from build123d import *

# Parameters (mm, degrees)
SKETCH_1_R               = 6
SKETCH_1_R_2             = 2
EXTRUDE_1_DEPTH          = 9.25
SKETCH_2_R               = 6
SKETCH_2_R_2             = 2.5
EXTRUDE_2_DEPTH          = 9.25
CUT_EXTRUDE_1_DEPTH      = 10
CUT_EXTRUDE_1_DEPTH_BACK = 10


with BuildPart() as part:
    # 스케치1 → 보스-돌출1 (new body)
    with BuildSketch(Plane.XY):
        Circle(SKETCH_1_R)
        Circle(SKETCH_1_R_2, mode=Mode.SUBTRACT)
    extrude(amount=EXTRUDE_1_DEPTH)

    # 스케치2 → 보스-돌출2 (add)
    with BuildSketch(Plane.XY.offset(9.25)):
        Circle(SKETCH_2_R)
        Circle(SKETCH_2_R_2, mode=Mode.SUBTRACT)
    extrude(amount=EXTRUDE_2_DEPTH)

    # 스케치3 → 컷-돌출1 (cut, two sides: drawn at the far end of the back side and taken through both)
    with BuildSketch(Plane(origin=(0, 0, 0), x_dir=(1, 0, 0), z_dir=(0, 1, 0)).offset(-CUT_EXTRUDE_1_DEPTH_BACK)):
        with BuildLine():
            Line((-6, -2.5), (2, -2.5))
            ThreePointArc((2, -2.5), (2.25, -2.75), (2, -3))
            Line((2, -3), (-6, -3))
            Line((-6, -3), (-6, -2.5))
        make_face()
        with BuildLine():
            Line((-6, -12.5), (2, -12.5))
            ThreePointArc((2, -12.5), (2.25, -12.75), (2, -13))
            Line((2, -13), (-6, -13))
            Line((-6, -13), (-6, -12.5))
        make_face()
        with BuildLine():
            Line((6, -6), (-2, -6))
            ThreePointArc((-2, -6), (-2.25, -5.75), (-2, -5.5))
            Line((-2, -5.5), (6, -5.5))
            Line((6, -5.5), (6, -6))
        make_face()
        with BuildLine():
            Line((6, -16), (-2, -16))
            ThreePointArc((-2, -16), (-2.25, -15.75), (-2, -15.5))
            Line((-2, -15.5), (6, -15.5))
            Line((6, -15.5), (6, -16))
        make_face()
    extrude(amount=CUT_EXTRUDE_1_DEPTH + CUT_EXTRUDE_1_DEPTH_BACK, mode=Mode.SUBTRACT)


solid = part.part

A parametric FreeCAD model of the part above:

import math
import FreeCAD as App
import Part
import Sketcher
Q = App.Units.Quantity

doc = App.newDocument("Part")
params = doc.addObject("Spreadsheet::Sheet", "Params")
for row, (alias, value) in enumerate([
    ("sketch1_diameter", "12 mm"),
    ("sketch1_diameter2", "4 mm"),
    ("pad1_length", "9.25 mm"),
    ("sketch2_diameter", "12 mm"),
    ("sketch2_diameter2", "5 mm"),
    ("pad2_length", "9.25 mm"),
    ("sketch3_width", "8 mm"),
    ("sketch3_radius", "0.25 mm"),
], start=1):
    params.set(f"A{row}", alias)
    params.set(f"B{row}", "=" + value)
    params.setAlias(f"B{row}", alias)

body = doc.addObject("PartDesign::Body", "Body")

# Sketch on XY plane
sketch1 = body.newObject("Sketcher::SketchObject", "Sketch")
sketch1.AttachmentSupport = (doc.getObject("XY_Plane"), [""])
sketch1.MapMode = "FlatFace"
sketch1.addGeometry(Part.Circle(App.Vector(0, 0, 0), App.Vector(0, 0, 1), 6), False)
sketch1.addGeometry(Part.Circle(App.Vector(0, 0, 0), App.Vector(0, 0, 1), 2), False)
sketch1.addConstraint(Sketcher.Constraint("Coincident", 0, 3, -1, 1))
sketch1.addConstraint(Sketcher.Constraint("Coincident", 1, 3, -1, 1))
sketch1.addConstraint(Sketcher.Constraint("Diameter", 0, Q("12 mm")))
sketch1.addConstraint(Sketcher.Constraint("Diameter", 1, Q("4 mm")))
sketch1.setExpression("Constraints[2]", "Params.sketch1_diameter")
sketch1.setExpression("Constraints[3]", "Params.sketch1_diameter2")
pad1 = body.newObject("PartDesign::Pad", "Pad")
pad1.Profile = sketch1
pad1.setExpression("Length", "Params.pad1_length")

# Sketch on XY plane
sketch2 = body.newObject("Sketcher::SketchObject", "Sketch001")
sketch2.AttachmentSupport = (doc.getObject("XY_Plane"), [""])
sketch2.MapMode = "FlatFace"
sketch2.AttachmentOffset = App.Placement(App.Vector(0, 0, 9.25), App.Rotation())
sketch2.addGeometry(Part.Circle(App.Vector(0, 0, 0), App.Vector(0, 0, 1), 6), False)
sketch2.addGeometry(Part.Circle(App.Vector(0, 0, 0), App.Vector(0, 0, 1), 2.5), False)
sketch2.addConstraint(Sketcher.Constraint("Coincident", 0, 3, -1, 1))
sketch2.addConstraint(Sketcher.Constraint("Coincident", 1, 3, -1, 1))
sketch2.addConstraint(Sketcher.Constraint("Diameter", 0, Q("12 mm")))
sketch2.addConstraint(Sketcher.Constraint("Diameter", 1, Q("5 mm")))
sketch2.setExpression("Constraints[2]", "Params.sketch2_diameter")
sketch2.setExpression("Constraints[3]", "Params.sketch2_diameter2")
pad2 = body.newObject("PartDesign::Pad", "Pad001")
pad2.Profile = sketch2
pad2.setExpression("Length", "Params.pad2_length")

# Sketch on XZ plane
sketch3 = body.newObject("Sketcher::SketchObject", "Sketch002")
sketch3.AttachmentSupport = (doc.getObject("XZ_Plane"), [""])
sketch3.MapMode = "FlatFace"
sketch3.addGeometry(Part.LineSegment(App.Vector(2, 2.5, 0), App.Vector(-6, 2.5, 0)), False)
sketch3.addGeometry(Part.LineSegment(App.Vector(-6, 2.5, 0), App.Vector(-6, 3, 0)), False)
sketch3.addGeometry(Part.LineSegment(App.Vector(-6, 3, 0), App.Vector(2, 3, 0)), False)
sketch3.addGeometry(Part.ArcOfCircle(Part.Circle(App.Vector(2, 2.75, 0), App.Vector(0, 0, 1), 0.25), math.radians(-90), math.radians(90)), False)
sketch3.addGeometry(Part.LineSegment(App.Vector(2, 12.5, 0), App.Vector(-6, 12.5, 0)), False)
sketch3.addGeometry(Part.LineSegment(App.Vector(-6, 12.5, 0), App.Vector(-6, 13, 0)), False)
sketch3.addGeometry(Part.LineSegment(App.Vector(-6, 13, 0), App.Vector(2, 13, 0)), False)
sketch3.addGeometry(Part.ArcOfCircle(Part.Circle(App.Vector(2, 12.75, 0), App.Vector(0, 0, 1), 0.25), math.radians(-90), math.radians(90)), False)
sketch3.addGeometry(Part.LineSegment(App.Vector(-2, 6, 0), App.Vector(6, 6, 0)), False)
sketch3.addGeometry(Part.LineSegment(App.Vector(6, 6, 0), App.Vector(6, 5.5, 0)), False)
sketch3.addGeometry(Part.LineSegment(App.Vector(6, 5.5, 0), App.Vector(-2, 5.5, 0)), False)
sketch3.addGeometry(Part.ArcOfCircle(Part.Circle(App.Vector(-2, 5.75, 0), App.Vector(0, 0, 1), 0.25), math.radians(90), math.radians(270)), False)
sketch3.addGeometry(Part.LineSegment(App.Vector(-2, 16, 0), App.Vector(6, 16, 0)), False)
sketch3.addGeometry(Part.LineSegment(App.Vector(6, 16, 0), App.Vector(6, 15.5, 0)), False)
sketch3.addGeometry(Part.LineSegment(App.Vector(6, 15.5, 0), App.Vector(-2, 15.5, 0)), False)
sketch3.addGeometry(Part.ArcOfCircle(Part.Circle(App.Vector(-2, 15.75, 0), App.Vector(0, 0, 1), 0.25), math.radians(90), math.radians(270)), False)
sketch3.addConstraint(Sketcher.Constraint("Coincident", 0, 2, 1, 1))
sketch3.addConstraint(Sketcher.Constraint("Coincident", 1, 2, 2, 1))
sketch3.addConstraint(Sketcher.Constraint("Tangent", 2, 2, 3, 2))
sketch3.addConstraint(Sketcher.Constraint("Tangent", 3, 1, 0, 1))
sketch3.addConstraint(Sketcher.Constraint("Coincident", 4, 2, 5, 1))
sketch3.addConstraint(Sketcher.Constraint("Coincident", 5, 2, 6, 1))
sketch3.addConstraint(Sketcher.Constraint("Tangent", 6, 2, 7, 2))
sketch3.addConstraint(Sketcher.Constraint("Tangent", 7, 1, 4, 1))
sketch3.addConstraint(Sketcher.Constraint("Coincident", 8, 2, 9, 1))
sketch3.addConstraint(Sketcher.Constraint("Coincident", 9, 2, 10, 1))
sketch3.addConstraint(Sketcher.Constraint("Tangent", 10, 2, 11, 2))
sketch3.addConstraint(Sketcher.Constraint("Tangent", 11, 1, 8, 1))
sketch3.addConstraint(Sketcher.Constraint("Coincident", 12, 2, 13, 1))
sketch3.addConstraint(Sketcher.Constraint("Coincident", 13, 2, 14, 1))
sketch3.addConstraint(Sketcher.Constraint("Tangent", 14, 2, 15, 2))
sketch3.addConstraint(Sketcher.Constraint("Tangent", 15, 1, 12, 1))
sketch3.addConstraint(Sketcher.Constraint("Horizontal", 0))
sketch3.addConstraint(Sketcher.Constraint("Vertical", 1))
sketch3.addConstraint(Sketcher.Constraint("Horizontal", 2))
sketch3.addConstraint(Sketcher.Constraint("Horizontal", 4))
sketch3.addConstraint(Sketcher.Constraint("Vertical", 5))
sketch3.addConstraint(Sketcher.Constraint("Horizontal", 6))
sketch3.addConstraint(Sketcher.Constraint("Horizontal", 8))
sketch3.addConstraint(Sketcher.Constraint("Vertical", 9))
sketch3.addConstraint(Sketcher.Constraint("Horizontal", 10))
sketch3.addConstraint(Sketcher.Constraint("Horizontal", 12))
sketch3.addConstraint(Sketcher.Constraint("Vertical", 13))
sketch3.addConstraint(Sketcher.Constraint("Horizontal", 14))
sketch3.addConstraint(Sketcher.Constraint("Equal", 3, 7))
sketch3.addConstraint(Sketcher.Constraint("Equal", 7, 11))
sketch3.addConstraint(Sketcher.Constraint("Equal", 11, 15))
sketch3.addConstraint(Sketcher.Constraint("Vertical", 3, 3, 7, 3))
sketch3.addConstraint(Sketcher.Constraint("Vertical", 11, 3, 15, 3))
sketch3.addConstraint(Sketcher.Constraint("Vertical", 1, 2, 4, 2))
sketch3.addConstraint(Sketcher.Constraint("Vertical", 9, 2, 12, 2))
sketch3.addConstraint(Sketcher.Constraint("Equal", 6, 8))
sketch3.addConstraint(Sketcher.Constraint("DistanceX", 0, 2, 0, 1, Q("8 mm")))
sketch3.addConstraint(Sketcher.Constraint("Radius", 3, Q("0.25 mm")))
sketch3.addConstraint(Sketcher.Constraint("DistanceX", -1, 1, 3, 3, Q("2 mm")))
sketch3.addConstraint(Sketcher.Constraint("DistanceX", 11, 3, -1, 1, Q("2 mm")))
sketch3.addConstraint(Sketcher.Constraint("DistanceY", -1, 1, 1, 2, Q("3 mm")))
sketch3.addConstraint(Sketcher.Constraint("DistanceY", -1, 1, 5, 2, Q("13 mm")))
sketch3.addConstraint(Sketcher.Constraint("DistanceY", -1, 1, 8, 2, Q("6 mm")))
sketch3.addConstraint(Sketcher.Constraint("DistanceY", -1, 1, 12, 2, Q("16 mm")))
sketch3.setExpression("Constraints[36]", "Params.sketch3_width")
sketch3.setExpression("Constraints[37]", "Params.sketch3_radius")
pocket1 = body.newObject("PartDesign::Pocket", "Pocket")
pocket1.Profile = sketch3
pocket1.Type = "ThroughAll"
pocket1.Midplane = True

doc.recompute()
